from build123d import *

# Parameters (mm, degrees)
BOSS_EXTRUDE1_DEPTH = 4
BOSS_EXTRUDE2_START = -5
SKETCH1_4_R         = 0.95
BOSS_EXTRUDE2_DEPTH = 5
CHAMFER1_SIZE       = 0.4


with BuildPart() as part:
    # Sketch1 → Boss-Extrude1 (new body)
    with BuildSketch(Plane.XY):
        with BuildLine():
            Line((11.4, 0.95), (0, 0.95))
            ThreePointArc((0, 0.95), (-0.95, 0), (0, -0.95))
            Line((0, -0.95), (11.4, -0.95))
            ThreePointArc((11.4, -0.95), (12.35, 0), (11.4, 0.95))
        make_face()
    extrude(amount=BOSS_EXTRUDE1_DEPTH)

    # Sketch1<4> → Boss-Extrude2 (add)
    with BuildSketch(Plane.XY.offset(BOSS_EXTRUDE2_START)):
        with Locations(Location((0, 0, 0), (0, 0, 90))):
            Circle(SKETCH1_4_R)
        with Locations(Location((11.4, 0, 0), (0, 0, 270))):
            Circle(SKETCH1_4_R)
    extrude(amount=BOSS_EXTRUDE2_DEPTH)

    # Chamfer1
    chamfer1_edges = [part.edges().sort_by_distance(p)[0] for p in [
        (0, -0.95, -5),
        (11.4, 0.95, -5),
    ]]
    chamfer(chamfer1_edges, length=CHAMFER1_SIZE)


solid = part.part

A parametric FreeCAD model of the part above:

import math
import FreeCAD as App
import Part
import Sketcher

V = App.Vector


def edges_at(feature, points):
    """Names of the edges that pass closest to the given points."""
    edges = feature.Shape.Edges
    near = lambda p: min(range(len(edges)), key=lambda i: edges[i].distToShape(Part.Vertex(*p))[0])
    return sorted({f"Edge{near(p) + 1}" for p in points})

doc = App.newDocument("Part")
body = doc.addObject("PartDesign::Body", "Body")

sketch1 = body.newObject("Sketcher::SketchObject", "Sketch")
sketch1.AttachmentSupport = (doc.getObject("XY_Plane"), [""])
sketch1.MapMode = "FlatFace"
sketch1.addGeometry([
    Part.LineSegment(V(11.4, 0.9, 0), V(0, 0.9, 0)),
    Part.ArcOfCircle(Part.Circle(V(0, 0, 0), V(0, 0, 1), 0.9), math.radians(90), math.radians(270)),
    Part.LineSegment(V(0, -0.9, 0), V(11.4, -0.9, 0)),
    Part.ArcOfCircle(Part.Circle(V(11.4, 0, 0), V(0, 0, 1), 0.9), math.radians(-90), math.radians(90)),
], False)
sketch1.addConstraint([
    Sketcher.Constraint("Tangent", 0, 2, 1, 1),
    Sketcher.Constraint("Tangent", 1, 2, 2, 1),
    Sketcher.Constraint("Tangent", 2, 2, 3, 1),
    Sketcher.Constraint("Tangent", 3, 2, 0, 1),
    Sketcher.Constraint("Horizontal", 0),
    Sketcher.Constraint("Horizontal", 2),
    Sketcher.Constraint("Coincident", 1, 3, -1, 1),
    Sketcher.Constraint("Radius", 1, 0.95),
    Sketcher.Constraint("DistanceX", 0, 2, 0, 1, 11.4),
])
pad1 = body.newObject("PartDesign::Pad", "Pad")
pad1.Profile = sketch1
pad1.Length = 4

sketch2 = body.newObject("Sketcher::SketchObject", "Sketch001")
sketch2.AttachmentSupport = (doc.getObject("XY_Plane"), [""])
sketch2.MapMode = "FlatFace"
sketch2.AttachmentOffset = App.Placement(V(0, 0, -5), App.Rotation())
sketch2.addGeometry([
    Part.Circle(V(0, 0, 0), V(0, 0, 1), 0.9),
    Part.Circle(V(11.4, 0, 0), V(0, 0, 1), 0.9),
], False)
sketch2.addConstraint([
    Sketcher.Constraint("Coincident", 0, 3, -1, 1),
    Sketcher.Constraint("Equal", 0, 1),
    Sketcher.Constraint("PointOnObject", 1, 3, -1),
    Sketcher.Constraint("Diameter", 0, 1.9),
    Sketcher.Constraint("DistanceX", -1, 1, 1, 3, 11.4),
])
pad2 = body.newObject("PartDesign::Pad", "Pad001")
pad2.Profile = sketch2
pad2.Length = 5
doc.recompute()

chamfer = body.newObject("PartDesign::Chamfer", "Chamfer")
chamfer.Base = (pad2, edges_at(pad2, [(0, -0.95, -5), (11.4, 0.95, -5)]))
chamfer.Size = 0.4

doc.recompute()
